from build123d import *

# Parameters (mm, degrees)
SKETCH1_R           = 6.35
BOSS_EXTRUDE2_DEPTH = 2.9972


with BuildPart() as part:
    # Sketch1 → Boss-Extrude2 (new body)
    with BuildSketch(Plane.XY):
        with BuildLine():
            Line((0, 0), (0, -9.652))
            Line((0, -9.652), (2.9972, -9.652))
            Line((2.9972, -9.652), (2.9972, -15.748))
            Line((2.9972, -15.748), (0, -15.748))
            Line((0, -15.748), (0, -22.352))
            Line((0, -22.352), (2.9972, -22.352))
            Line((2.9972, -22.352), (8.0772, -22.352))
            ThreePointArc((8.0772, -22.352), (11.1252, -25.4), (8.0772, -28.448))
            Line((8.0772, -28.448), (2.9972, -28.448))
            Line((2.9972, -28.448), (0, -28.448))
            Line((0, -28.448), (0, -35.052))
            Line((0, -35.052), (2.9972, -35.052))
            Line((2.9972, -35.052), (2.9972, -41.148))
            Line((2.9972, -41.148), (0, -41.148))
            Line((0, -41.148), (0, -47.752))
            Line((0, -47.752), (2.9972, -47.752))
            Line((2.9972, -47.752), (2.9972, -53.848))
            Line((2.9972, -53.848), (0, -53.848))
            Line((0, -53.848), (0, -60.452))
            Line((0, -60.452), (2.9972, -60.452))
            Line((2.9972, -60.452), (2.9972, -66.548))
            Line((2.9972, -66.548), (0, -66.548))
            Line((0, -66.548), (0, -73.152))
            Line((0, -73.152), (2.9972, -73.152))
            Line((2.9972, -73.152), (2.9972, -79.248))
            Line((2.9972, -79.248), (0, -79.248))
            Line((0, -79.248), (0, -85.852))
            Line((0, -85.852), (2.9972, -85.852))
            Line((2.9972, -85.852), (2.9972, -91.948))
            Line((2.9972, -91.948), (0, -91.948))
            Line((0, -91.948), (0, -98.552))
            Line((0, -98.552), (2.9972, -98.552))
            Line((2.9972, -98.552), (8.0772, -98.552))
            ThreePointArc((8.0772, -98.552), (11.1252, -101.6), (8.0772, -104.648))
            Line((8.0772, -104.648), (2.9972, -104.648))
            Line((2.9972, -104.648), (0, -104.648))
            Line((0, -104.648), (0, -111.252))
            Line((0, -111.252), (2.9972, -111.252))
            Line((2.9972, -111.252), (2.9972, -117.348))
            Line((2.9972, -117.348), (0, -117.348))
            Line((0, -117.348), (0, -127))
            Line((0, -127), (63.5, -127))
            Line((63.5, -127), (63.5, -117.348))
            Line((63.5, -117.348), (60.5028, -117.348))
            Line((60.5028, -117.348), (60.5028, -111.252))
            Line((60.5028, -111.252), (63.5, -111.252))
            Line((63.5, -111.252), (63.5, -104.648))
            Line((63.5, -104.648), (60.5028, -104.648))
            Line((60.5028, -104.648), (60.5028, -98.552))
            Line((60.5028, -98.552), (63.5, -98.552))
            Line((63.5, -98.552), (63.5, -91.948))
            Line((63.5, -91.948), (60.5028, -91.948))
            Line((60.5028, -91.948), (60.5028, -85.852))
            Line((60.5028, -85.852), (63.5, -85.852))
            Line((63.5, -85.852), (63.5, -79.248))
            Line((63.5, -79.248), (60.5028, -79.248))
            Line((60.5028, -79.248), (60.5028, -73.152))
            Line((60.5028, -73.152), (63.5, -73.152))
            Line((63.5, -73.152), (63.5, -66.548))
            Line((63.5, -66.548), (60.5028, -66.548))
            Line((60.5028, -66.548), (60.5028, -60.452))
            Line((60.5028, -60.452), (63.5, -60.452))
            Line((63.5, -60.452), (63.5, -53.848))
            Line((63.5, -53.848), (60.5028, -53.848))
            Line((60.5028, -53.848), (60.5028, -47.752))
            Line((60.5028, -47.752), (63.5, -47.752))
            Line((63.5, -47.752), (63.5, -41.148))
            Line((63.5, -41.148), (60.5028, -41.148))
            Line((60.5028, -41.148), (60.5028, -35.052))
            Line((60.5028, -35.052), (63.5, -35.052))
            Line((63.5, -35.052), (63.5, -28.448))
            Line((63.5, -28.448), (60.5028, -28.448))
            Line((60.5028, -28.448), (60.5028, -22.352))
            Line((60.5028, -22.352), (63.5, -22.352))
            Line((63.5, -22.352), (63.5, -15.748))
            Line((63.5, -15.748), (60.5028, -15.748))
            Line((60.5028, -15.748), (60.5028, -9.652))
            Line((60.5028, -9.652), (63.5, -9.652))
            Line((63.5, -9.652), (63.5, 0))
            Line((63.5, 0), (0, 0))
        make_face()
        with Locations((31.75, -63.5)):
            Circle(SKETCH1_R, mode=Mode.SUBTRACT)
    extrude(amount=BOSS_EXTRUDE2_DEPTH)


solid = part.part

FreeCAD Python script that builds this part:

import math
import FreeCAD as App
import Part
import Sketcher
from FreeCAD import Vector
Q = App.Units.Quantity

doc = App.newDocument("Part")
params = doc.addObject("Spreadsheet::Sheet", "Params")
for row, (alias, value) in enumerate([
    ("sketch1_diameter", "0.5 in"),
    ("sketch1_radius", "0.12 in"),
    ("sketch1_width", "2.5 in"),
    ("sketch1_width2", "0.118 in"),
    ("sketch1_width3", "0.318 in"),
    ("pad1_length", "0.118 in"),
], start=1):
    params.set(f"A{row}", alias)
    params.set(f"B{row}", "=" + value)
    params.setAlias(f"B{row}", alias)

body = doc.addObject("PartDesign::Body", "Body")

# Sketch on XY plane
sketch1 = body.newObject("Sketcher::SketchObject", "Sketch")
sketch1.AttachmentSupport = (doc.getObject("XY_Plane"), [""])
sketch1.MapMode = "FlatFace"
sketch1.addGeometry([
    Part.LineSegment(Vector(0, 0, 0), Vector(0, -9.652, 0)),  # 0
    Part.LineSegment(Vector(0, -9.652, 0), Vector(2.9972, -9.652, 0)),  # 1
    Part.LineSegment(Vector(2.9972, -9.652, 0), Vector(2.9972, -15.748, 0)),  # 2
    Part.LineSegment(Vector(2.9972, -15.748, 0), Vector(0, -15.748, 0)),  # 3
    Part.LineSegment(Vector(0, -15.748, 0), Vector(0, -22.352, 0)),  # 4
    Part.LineSegment(Vector(0, -22.352, 0), Vector(8.0772, -22.352, 0)),  # 5
    Part.ArcOfCircle(Part.Circle(Vector(8.0772, -25.4, 0), Vector(0, 0, 1), 3.048), math.radians(-90), math.radians(90)),  # 6
    Part.LineSegment(Vector(8.0772, -28.448, 0), Vector(0, -28.448, 0)),  # 7
    Part.LineSegment(Vector(0, -28.448, 0), Vector(0, -35.052, 0)),  # 8
    Part.LineSegment(Vector(0, -35.052, 0), Vector(2.9972, -35.052, 0)),  # 9
    Part.LineSegment(Vector(2.9972, -35.052, 0), Vector(2.9972, -41.148, 0)),  # 10
    Part.LineSegment(Vector(2.9972, -41.148, 0), Vector(0, -41.148, 0)),  # 11
    Part.LineSegment(Vector(0, -41.148, 0), Vector(0, -47.752, 0)),  # 12
    Part.LineSegment(Vector(0, -47.752, 0), Vector(2.9972, -47.752, 0)),  # 13
    Part.LineSegment(Vector(2.9972, -47.752, 0), Vector(2.9972, -53.848, 0)),  # 14
    Part.LineSegment(Vector(2.9972, -53.848, 0), Vector(0, -53.848, 0)),  # 15
    Part.LineSegment(Vector(0, -53.848, 0), Vector(0, -60.452, 0)),  # 16
    Part.LineSegment(Vector(0, -60.452, 0), Vector(2.9972, -60.452, 0)),  # 17
    Part.LineSegment(Vector(2.9972, -60.452, 0), Vector(2.9972, -66.548, 0)),  # 18
    Part.LineSegment(Vector(2.9972, -66.548, 0), Vector(0, -66.548, 0)),  # 19
    Part.LineSegment(Vector(0, -66.548, 0), Vector(0, -73.152, 0)),  # 20
    Part.LineSegment(Vector(0, -73.152, 0), Vector(2.9972, -73.152, 0)),  # 21
    Part.LineSegment(Vector(2.9972, -73.152, 0), Vector(2.9972, -79.248, 0)),  # 22
    Part.LineSegment(Vector(2.9972, -79.248, 0), Vector(0, -79.248, 0)),  # 23
    Part.LineSegment(Vector(0, -79.248, 0), Vector(0, -85.852, 0)),  # 24
    Part.LineSegment(Vector(0, -85.852, 0), Vector(2.9972, -85.852, 0)),  # 25
    Part.LineSegment(Vector(2.9972, -85.852, 0), Vector(2.9972, -91.948, 0)),  # 26
    Part.LineSegment(Vector(2.9972, -91.948, 0), Vector(0, -91.948, 0)),  # 27
    Part.LineSegment(Vector(0, -91.948, 0), Vector(0, -98.552, 0)),  # 28
    Part.LineSegment(Vector(0, -98.552, 0), Vector(8.0772, -98.552, 0)),  # 29
    Part.ArcOfCircle(Part.Circle(Vector(8.0772, -101.6, 0), Vector(0, 0, 1), 3.048), math.radians(-90), math.radians(90)),  # 30
    Part.LineSegment(Vector(8.0772, -104.648, 0), Vector(0, -104.648, 0)),  # 31
    Part.LineSegment(Vector(0, -104.648, 0), Vector(0, -111.252, 0)),  # 32
    Part.LineSegment(Vector(0, -111.252, 0), Vector(2.9972, -111.252, 0)),  # 33
    Part.LineSegment(Vector(2.9972, -111.252, 0), Vector(2.9972, -117.348, 0)),  # 34
    Part.LineSegment(Vector(2.9972, -117.348, 0), Vector(0, -117.348, 0)),  # 35
    Part.LineSegment(Vector(0, -117.348, 0), Vector(0, -127, 0)),  # 36
    Part.LineSegment(Vector(0, -127, 0), Vector(63.5, -127, 0)),  # 37
    Part.LineSegment(Vector(63.5, -127, 0), Vector(63.5, -117.348, 0)),  # 38
    Part.LineSegment(Vector(63.5, -117.348, 0), Vector(60.5028, -117.348, 0)),  # 39
    Part.LineSegment(Vector(60.5028, -117.348, 0), Vector(60.5028, -111.252, 0)),  # 40
    Part.LineSegment(Vector(60.5028, -111.252, 0), Vector(63.5, -111.252, 0)),  # 41
    Part.LineSegment(Vector(63.5, -111.252, 0), Vector(63.5, -104.648, 0)),  # 42
    Part.LineSegment(Vector(63.5, -104.648, 0), Vector(60.5028, -104.648, 0)),  # 43
    Part.LineSegment(Vector(60.5028, -104.648, 0), Vector(60.5028, -98.552, 0)),  # 44
    Part.LineSegment(Vector(60.5028, -98.552, 0), Vector(63.5, -98.552, 0)),  # 45
    Part.LineSegment(Vector(63.5, -98.552, 0), Vector(63.5, -91.948, 0)),  # 46
    Part.LineSegment(Vector(63.5, -91.948, 0), Vector(60.5028, -91.948, 0)),  # 47
    Part.LineSegment(Vector(60.5028, -91.948, 0), Vector(60.5028, -85.852, 0)),  # 48
    Part.LineSegment(Vector(60.5028, -85.852, 0), Vector(63.5, -85.852, 0)),  # 49
    Part.LineSegment(Vector(63.5, -85.852, 0), Vector(63.5, -79.248, 0)),  # 50
    Part.LineSegment(Vector(63.5, -79.248, 0), Vector(60.5028, -79.248, 0)),  # 51
    Part.LineSegment(Vector(60.5028, -79.248, 0), Vector(60.5028, -73.152, 0)),  # 52
    Part.LineSegment(Vector(60.5028, -73.152, 0), Vector(63.5, -73.152, 0)),  # 53
    Part.LineSegment(Vector(63.5, -73.152, 0), Vector(63.5, -66.548, 0)),  # 54
    Part.LineSegment(Vector(63.5, -66.548, 0), Vector(60.5028, -66.548, 0)),  # 55
    Part.LineSegment(Vector(60.5028, -66.548, 0), Vector(60.5028, -60.452, 0)),  # 56
    Part.LineSegment(Vector(60.5028, -60.452, 0), Vector(63.5, -60.452, 0)),  # 57
    Part.LineSegment(Vector(63.5, -60.452, 0), Vector(63.5, -53.848, 0)),  # 58
    Part.LineSegment(Vector(63.5, -53.848, 0), Vector(60.5028, -53.848, 0)),  # 59
    Part.LineSegment(Vector(60.5028, -53.848, 0), Vector(60.5028, -47.752, 0)),  # 60
    Part.LineSegment(Vector(60.5028, -47.752, 0), Vector(63.5, -47.752, 0)),  # 61
    Part.LineSegment(Vector(63.5, -47.752, 0), Vector(63.5, -41.148, 0)),  # 62
    Part.LineSegment(Vector(63.5, -41.148, 0), Vector(60.5028, -41.148, 0)),  # 63
    Part.LineSegment(Vector(60.5028, -41.148, 0), Vector(60.5028, -35.052, 0)),  # 64
    Part.LineSegment(Vector(60.5028, -35.052, 0), Vector(63.5, -35.052, 0)),  # 65
    Part.LineSegment(Vector(63.5, -35.052, 0), Vector(63.5, -28.448, 0)),  # 66
    Part.LineSegment(Vector(63.5, -28.448, 0), Vector(60.5028, -28.448, 0)),  # 67
    Part.LineSegment(Vector(60.5028, -28.448, 0), Vector(60.5028, -22.352, 0)),  # 68
    Part.LineSegment(Vector(60.5028, -22.352, 0), Vector(63.5, -22.352, 0)),  # 69
    Part.LineSegment(Vector(63.5, -22.352, 0), Vector(63.5, -15.748, 0)),  # 70
    Part.LineSegment(Vector(63.5, -15.748, 0), Vector(60.5028, -15.748, 0)),  # 71
    Part.LineSegment(Vector(60.5028, -15.748, 0), Vector(60.5028, -9.652, 0)),  # 72
    Part.LineSegment(Vector(60.5028, -9.652, 0), Vector(63.5, -9.652, 0)),  # 73
    Part.LineSegment(Vector(63.5, -9.652, 0), Vector(63.5, 0, 0)),  # 74
    Part.LineSegment(Vector(63.5, 0, 0), Vector(0, 0, 0)),  # 75
    Part.Circle(Vector(31.75, -63.5, 0), Vector(0, 0, 1), 6.35),  # 76
], False)
sketch1.addConstraint([
    Sketcher.Constraint("Coincident", 0, 2, 1, 1),
    Sketcher.Constraint("Coincident", 1, 2, 2, 1),
    Sketcher.Constraint("Coincident", 2, 2, 3, 1),
    Sketcher.Constraint("Coincident", 3, 2, 4, 1),
    Sketcher.Constraint("Coincident", 4, 2, 5, 1),
    Sketcher.Constraint("Tangent", 5, 2, 6, 2),
    Sketcher.Constraint("Tangent", 6, 1, 7, 1),
    Sketcher.Constraint("Coincident", 7, 2, 8, 1),
    Sketcher.Constraint("Coincident", 8, 2, 9, 1),
    Sketcher.Constraint("Coincident", 9, 2, 10, 1),
    Sketcher.Constraint("Coincident", 10, 2, 11, 1),
    Sketcher.Constraint("Coincident", 11, 2, 12, 1),
    Sketcher.Constraint("Coincident", 12, 2, 13, 1),
    Sketcher.Constraint("Coincident", 13, 2, 14, 1),
    Sketcher.Constraint("Coincident", 14, 2, 15, 1),
    Sketcher.Constraint("Coincident", 15, 2, 16, 1),
    Sketcher.Constraint("Coincident", 16, 2, 17, 1),
    Sketcher.Constraint("Coincident", 17, 2, 18, 1),
    Sketcher.Constraint("Coincident", 18, 2, 19, 1),
    Sketcher.Constraint("Coincident", 19, 2, 20, 1),
    Sketcher.Constraint("Coincident", 20, 2, 21, 1),
    Sketcher.Constraint("Coincident", 21, 2, 22, 1),
    Sketcher.Constraint("Coincident", 22, 2, 23, 1),
    Sketcher.Constraint("Coincident", 23, 2, 24, 1),
    Sketcher.Constraint("Coincident", 24, 2, 25, 1),
    Sketcher.Constraint("Coincident", 25, 2, 26, 1),
    Sketcher.Constraint("Coincident", 26, 2, 27, 1),
    Sketcher.Constraint("Coincident", 27, 2, 28, 1),
    Sketcher.Constraint("Coincident", 28, 2, 29, 1),
    Sketcher.Constraint("Tangent", 29, 2, 30, 2),
    Sketcher.Constraint("Tangent", 30, 1, 31, 1),
    Sketcher.Constraint("Coincident", 31, 2, 32, 1),
    Sketcher.Constraint("Coincident", 32, 2, 33, 1),
    Sketcher.Constraint("Coincident", 33, 2, 34, 1),
    Sketcher.Constraint("Coincident", 34, 2, 35, 1),
    Sketcher.Constraint("Coincident", 35, 2, 36, 1),
    Sketcher.Constraint("Coincident", 36, 2, 37, 1),
    Sketcher.Constraint("Coincident", 37, 2, 38, 1),
    Sketcher.Constraint("Coincident", 38, 2, 39, 1),
    Sketcher.Constraint("Coincident", 39, 2, 40, 1),
    Sketcher.Constraint("Coincident", 40, 2, 41, 1),
    Sketcher.Constraint("Coincident", 41, 2, 42, 1),
    Sketcher.Constraint("Coincident", 42, 2, 43, 1),
    Sketcher.Constraint("Coincident", 43, 2, 44, 1),
    Sketcher.Constraint("Coincident", 44, 2, 45, 1),
    Sketcher.Constraint("Coincident", 45, 2, 46, 1),
    Sketcher.Constraint("Coincident", 46, 2, 47, 1),
    Sketcher.Constraint("Coincident", 47, 2, 48, 1),
    Sketcher.Constraint("Coincident", 48, 2, 49, 1),
    Sketcher.Constraint("Coincident", 49, 2, 50, 1),
    Sketcher.Constraint("Coincident", 50, 2, 51, 1),
    Sketcher.Constraint("Coincident", 51, 2, 52, 1),
    Sketcher.Constraint("Coincident", 52, 2, 53, 1),
    Sketcher.Constraint("Coincident", 53, 2, 54, 1),
    Sketcher.Constraint("Coincident", 54, 2, 55, 1),
    Sketcher.Constraint("Coincident", 55, 2, 56, 1),
    Sketcher.Constraint("Coincident", 56, 2, 57, 1),
    Sketcher.Constraint("Coincident", 57, 2, 58, 1),
    Sketcher.Constraint("Coincident", 58, 2, 59, 1),
    Sketcher.Constraint("Coincident", 59, 2, 60, 1),
    Sketcher.Constraint("Coincident", 60, 2, 61, 1),
    Sketcher.Constraint("Coincident", 61, 2, 62, 1),
    Sketcher.Constraint("Coincident", 62, 2, 63, 1),
    Sketcher.Constraint("Coincident", 63, 2, 64, 1),
    Sketcher.Constraint("Coincident", 64, 2, 65, 1),
    Sketcher.Constraint("Coincident", 65, 2, 66, 1),
    Sketcher.Constraint("Coincident", 66, 2, 67, 1),
    Sketcher.Constraint("Coincident", 67, 2, 68, 1),
    Sketcher.Constraint("Coincident", 68, 2, 69, 1),
    Sketcher.Constraint("Coincident", 69, 2, 70, 1),
    Sketcher.Constraint("Coincident", 70, 2, 71, 1),
    Sketcher.Constraint("Coincident", 71, 2, 72, 1),
    Sketcher.Constraint("Coincident", 72, 2, 73, 1),
    Sketcher.Constraint("Coincident", 73, 2, 74, 1),
    Sketcher.Constraint("Coincident", 74, 2, 75, 1),
    Sketcher.Constraint("Coincident", 75, 2, 0, 1),
    Sketcher.Constraint("Vertical", 0),
    Sketcher.Constraint("Horizontal", 1),
    Sketcher.Constraint("Vertical", 2),
    Sketcher.Constraint("Horizontal", 3),
    Sketcher.Constraint("Vertical", 4),
    Sketcher.Constraint("Horizontal", 5),
    Sketcher.Constraint("Horizontal", 7),
    Sketcher.Constraint("Vertical", 8),
    Sketcher.Constraint("Horizontal", 9),
    Sketcher.Constraint("Vertical", 10),
    Sketcher.Constraint("Horizontal", 11),
    Sketcher.Constraint("Vertical", 12),
    Sketcher.Constraint("Horizontal", 13),
    Sketcher.Constraint("Vertical", 14),
    Sketcher.Constraint("Horizontal", 15),
    Sketcher.Constraint("Vertical", 16),
    Sketcher.Constraint("Horizontal", 17),
    Sketcher.Constraint("Vertical", 18),
    Sketcher.Constraint("Horizontal", 19),
    Sketcher.Constraint("Vertical", 20),
    Sketcher.Constraint("Horizontal", 21),
    Sketcher.Constraint("Vertical", 22),
    Sketcher.Constraint("Horizontal", 23),
    Sketcher.Constraint("Vertical", 24),
    Sketcher.Constraint("Horizontal", 25),
    Sketcher.Constraint("Vertical", 26),
    Sketcher.Constraint("Horizontal", 27),
    Sketcher.Constraint("Vertical", 28),
    Sketcher.Constraint("Horizontal", 29),
    Sketcher.Constraint("Horizontal", 31),
    Sketcher.Constraint("Vertical", 32),
    Sketcher.Constraint("Horizontal", 33),
    Sketcher.Constraint("Vertical", 34),
    Sketcher.Constraint("Horizontal", 35),
    Sketcher.Constraint("Vertical", 36),
    Sketcher.Constraint("Horizontal", 37),
    Sketcher.Constraint("Vertical", 38),
    Sketcher.Constraint("Horizontal", 39),
    Sketcher.Constraint("Vertical", 40),
    Sketcher.Constraint("Horizontal", 41),
    Sketcher.Constraint("Vertical", 42),
    Sketcher.Constraint("Horizontal", 43),
    Sketcher.Constraint("Vertical", 44),
    Sketcher.Constraint("Horizontal", 45),
    Sketcher.Constraint("Vertical", 46),
    Sketcher.Constraint("Horizontal", 47),
    Sketcher.Constraint("Vertical", 48),
    Sketcher.Constraint("Horizontal", 49),
    Sketcher.Constraint("Vertical", 50),
    Sketcher.Constraint("Horizontal", 51),
    Sketcher.Constraint("Vertical", 52),
    Sketcher.Constraint("Horizontal", 53),
    Sketcher.Constraint("Vertical", 54),
    Sketcher.Constraint("Horizontal", 55),
    Sketcher.Constraint("Vertical", 56),
    Sketcher.Constraint("Horizontal", 57),
    Sketcher.Constraint("Vertical", 58),
    Sketcher.Constraint("Horizontal", 59),
    Sketcher.Constraint("Vertical", 60),
    Sketcher.Constraint("Horizontal", 61),
    Sketcher.Constraint("Vertical", 62),
    Sketcher.Constraint("Horizontal", 63),
    Sketcher.Constraint("Vertical", 64),
    Sketcher.Constraint("Horizontal", 65),
    Sketcher.Constraint("Vertical", 66),
    Sketcher.Constraint("Horizontal", 67),
    Sketcher.Constraint("Vertical", 68),
    Sketcher.Constraint("Horizontal", 69),
    Sketcher.Constraint("Vertical", 70),
    Sketcher.Constraint("Horizontal", 71),
    Sketcher.Constraint("Vertical", 72),
    Sketcher.Constraint("Horizontal", 73),
    Sketcher.Constraint("Vertical", 74),
    Sketcher.Constraint("Horizontal", 75),
    Sketcher.Constraint("Coincident", 75, 2, -1, 1),
    Sketcher.Constraint("Equal", 6, 30),
    Sketcher.Constraint("PointOnObject", 3, 2, -2),
    Sketcher.Constraint("PointOnObject", 7, 2, -2),
    Sketcher.Constraint("PointOnObject", 11, 2, -2),
    Sketcher.Constraint("PointOnObject", 15, 2, -2),
    Sketcher.Constraint("PointOnObject", 19, 2, -2),
    Sketcher.Constraint("PointOnObject", 23, 2, -2),
    Sketcher.Constraint("PointOnObject", 27, 2, -2),
    Sketcher.Constraint("PointOnObject", 31, 2, -2),
    Sketcher.Constraint("PointOnObject", 35, 2, -2),
    Sketcher.Constraint("Horizontal", 35, 2, 38, 2),
    Sketcher.Constraint("Horizontal", 33, 2, 40, 2),
    Sketcher.Constraint("Horizontal", 31, 2, 42, 2),
    Sketcher.Constraint("Horizontal", 29, 2, 44, 2),
    Sketcher.Constraint("Horizontal", 27, 2, 46, 2),
    Sketcher.Constraint("Horizontal", 25, 2, 48, 2),
    Sketcher.Constraint("Horizontal", 23, 2, 50, 2),
    Sketcher.Constraint("Horizontal", 21, 2, 52, 2),
    Sketcher.Constraint("Horizontal", 19, 2, 54, 2),
    Sketcher.Constraint("Horizontal", 17, 2, 56, 2),
    Sketcher.Constraint("Horizontal", 15, 2, 58, 2),
    Sketcher.Constraint("Horizontal", 13, 2, 60, 2),
    Sketcher.Constraint("Horizontal", 11, 2, 62, 2),
    Sketcher.Constraint("Horizontal", 9, 2, 64, 2),
    Sketcher.Constraint("Horizontal", 7, 2, 66, 2),
    Sketcher.Constraint("Horizontal", 5, 2, 68, 2),
    Sketcher.Constraint("Horizontal", 3, 2, 70, 2),
    Sketcher.Constraint("Horizontal", 1, 2, 72, 2),
    Sketcher.Constraint("Vertical", 6, 3, 30, 3),
    Sketcher.Constraint("Vertical", 2, 2, 9, 2),
    Sketcher.Constraint("Vertical", 10, 2, 13, 2),
    Sketcher.Constraint("Vertical", 14, 2, 17, 2),
    Sketcher.Constraint("Vertical", 18, 2, 21, 2),
    Sketcher.Constraint("Vertical", 22, 2, 25, 2),
    Sketcher.Constraint("Vertical", 26, 2, 33, 2),
    Sketcher.Constraint("Vertical", 38, 2, 41, 2),
    Sketcher.Constraint("Vertical", 40, 2, 43, 2),
    Sketcher.Constraint("Vertical", 42, 2, 45, 2),
    Sketcher.Constraint("Vertical", 44, 2, 47, 2),
    Sketcher.Constraint("Vertical", 46, 2, 49, 2),
    Sketcher.Constraint("Vertical", 48, 2, 51, 2),
    Sketcher.Constraint("Vertical", 50, 2, 53, 2),
    Sketcher.Constraint("Vertical", 52, 2, 55, 2),
    Sketcher.Constraint("Vertical", 54, 2, 57, 2),
    Sketcher.Constraint("Vertical", 56, 2, 59, 2),
    Sketcher.Constraint("Vertical", 58, 2, 61, 2),
    Sketcher.Constraint("Vertical", 60, 2, 63, 2),
    Sketcher.Constraint("Vertical", 62, 2, 65, 2),
    Sketcher.Constraint("Vertical", 64, 2, 67, 2),
    Sketcher.Constraint("Vertical", 66, 2, 69, 2),
    Sketcher.Constraint("Vertical", 68, 2, 71, 2),
    Sketcher.Constraint("Vertical", 70, 2, 73, 2),
    Sketcher.Constraint("Equal", 35, 39),
    Sketcher.Constraint("Equal", 4, 8),
    Sketcher.Constraint("Equal", 2, 10),
    Sketcher.Constraint("Equal", 8, 12),
    Sketcher.Constraint("Equal", 10, 14),
    Sketcher.Constraint("Equal", 12, 16),
    Sketcher.Constraint("Equal", 14, 18),
    Sketcher.Constraint("Equal", 16, 20),
    Sketcher.Constraint("Equal", 18, 22),
    Sketcher.Constraint("Equal", 20, 24),
    Sketcher.Constraint("Equal", 22, 26),
    Sketcher.Constraint("Equal", 24, 28),
    Sketcher.Constraint("Equal", 28, 32),
    Sketcher.Constraint("Equal", 26, 34),
    Sketcher.Constraint("Equal", 0, 36),
    Sketcher.Constraint("Equal", 40, 44),
    Sketcher.Constraint("Diameter", 76, Q("0.5 in")),
    Sketcher.Constraint("Radius", 6, Q("0.12 in")),
    Sketcher.Constraint("DistanceX", 37, 1, 37, 2, Q("2.5 in")),
    Sketcher.Constraint("DistanceY", 6, 3, -1, 1, Q("1 in")),
    Sketcher.Constraint("DistanceY", 30, 3, -1, 1, Q("4 in")),
    Sketcher.Constraint("DistanceY", 76, 3, -1, 1, Q("2.5 in")),
    Sketcher.Constraint("DistanceX", 1, 1, 1, 2, Q("0.118 in")),
    Sketcher.Constraint("DistanceX", 5, 1, 5, 2, Q("0.318 in")),
    Sketcher.Constraint("DistanceX", -1, 1, 76, 3, Q("1.25 in")),
])
sketch1.setExpression("Constraints[219]", "Params.sketch1_diameter")
sketch1.setExpression("Constraints[220]", "Params.sketch1_radius")
sketch1.setExpression("Constraints[221]", "Params.sketch1_width")
sketch1.setExpression("Constraints[225]", "Params.sketch1_width2")
sketch1.setExpression("Constraints[226]", "Params.sketch1_width3")
pad1 = body.newObject("PartDesign::Pad", "Pad")
pad1.Profile = sketch1
pad1.setExpression("Length", "Params.pad1_length")

doc.recompute()
